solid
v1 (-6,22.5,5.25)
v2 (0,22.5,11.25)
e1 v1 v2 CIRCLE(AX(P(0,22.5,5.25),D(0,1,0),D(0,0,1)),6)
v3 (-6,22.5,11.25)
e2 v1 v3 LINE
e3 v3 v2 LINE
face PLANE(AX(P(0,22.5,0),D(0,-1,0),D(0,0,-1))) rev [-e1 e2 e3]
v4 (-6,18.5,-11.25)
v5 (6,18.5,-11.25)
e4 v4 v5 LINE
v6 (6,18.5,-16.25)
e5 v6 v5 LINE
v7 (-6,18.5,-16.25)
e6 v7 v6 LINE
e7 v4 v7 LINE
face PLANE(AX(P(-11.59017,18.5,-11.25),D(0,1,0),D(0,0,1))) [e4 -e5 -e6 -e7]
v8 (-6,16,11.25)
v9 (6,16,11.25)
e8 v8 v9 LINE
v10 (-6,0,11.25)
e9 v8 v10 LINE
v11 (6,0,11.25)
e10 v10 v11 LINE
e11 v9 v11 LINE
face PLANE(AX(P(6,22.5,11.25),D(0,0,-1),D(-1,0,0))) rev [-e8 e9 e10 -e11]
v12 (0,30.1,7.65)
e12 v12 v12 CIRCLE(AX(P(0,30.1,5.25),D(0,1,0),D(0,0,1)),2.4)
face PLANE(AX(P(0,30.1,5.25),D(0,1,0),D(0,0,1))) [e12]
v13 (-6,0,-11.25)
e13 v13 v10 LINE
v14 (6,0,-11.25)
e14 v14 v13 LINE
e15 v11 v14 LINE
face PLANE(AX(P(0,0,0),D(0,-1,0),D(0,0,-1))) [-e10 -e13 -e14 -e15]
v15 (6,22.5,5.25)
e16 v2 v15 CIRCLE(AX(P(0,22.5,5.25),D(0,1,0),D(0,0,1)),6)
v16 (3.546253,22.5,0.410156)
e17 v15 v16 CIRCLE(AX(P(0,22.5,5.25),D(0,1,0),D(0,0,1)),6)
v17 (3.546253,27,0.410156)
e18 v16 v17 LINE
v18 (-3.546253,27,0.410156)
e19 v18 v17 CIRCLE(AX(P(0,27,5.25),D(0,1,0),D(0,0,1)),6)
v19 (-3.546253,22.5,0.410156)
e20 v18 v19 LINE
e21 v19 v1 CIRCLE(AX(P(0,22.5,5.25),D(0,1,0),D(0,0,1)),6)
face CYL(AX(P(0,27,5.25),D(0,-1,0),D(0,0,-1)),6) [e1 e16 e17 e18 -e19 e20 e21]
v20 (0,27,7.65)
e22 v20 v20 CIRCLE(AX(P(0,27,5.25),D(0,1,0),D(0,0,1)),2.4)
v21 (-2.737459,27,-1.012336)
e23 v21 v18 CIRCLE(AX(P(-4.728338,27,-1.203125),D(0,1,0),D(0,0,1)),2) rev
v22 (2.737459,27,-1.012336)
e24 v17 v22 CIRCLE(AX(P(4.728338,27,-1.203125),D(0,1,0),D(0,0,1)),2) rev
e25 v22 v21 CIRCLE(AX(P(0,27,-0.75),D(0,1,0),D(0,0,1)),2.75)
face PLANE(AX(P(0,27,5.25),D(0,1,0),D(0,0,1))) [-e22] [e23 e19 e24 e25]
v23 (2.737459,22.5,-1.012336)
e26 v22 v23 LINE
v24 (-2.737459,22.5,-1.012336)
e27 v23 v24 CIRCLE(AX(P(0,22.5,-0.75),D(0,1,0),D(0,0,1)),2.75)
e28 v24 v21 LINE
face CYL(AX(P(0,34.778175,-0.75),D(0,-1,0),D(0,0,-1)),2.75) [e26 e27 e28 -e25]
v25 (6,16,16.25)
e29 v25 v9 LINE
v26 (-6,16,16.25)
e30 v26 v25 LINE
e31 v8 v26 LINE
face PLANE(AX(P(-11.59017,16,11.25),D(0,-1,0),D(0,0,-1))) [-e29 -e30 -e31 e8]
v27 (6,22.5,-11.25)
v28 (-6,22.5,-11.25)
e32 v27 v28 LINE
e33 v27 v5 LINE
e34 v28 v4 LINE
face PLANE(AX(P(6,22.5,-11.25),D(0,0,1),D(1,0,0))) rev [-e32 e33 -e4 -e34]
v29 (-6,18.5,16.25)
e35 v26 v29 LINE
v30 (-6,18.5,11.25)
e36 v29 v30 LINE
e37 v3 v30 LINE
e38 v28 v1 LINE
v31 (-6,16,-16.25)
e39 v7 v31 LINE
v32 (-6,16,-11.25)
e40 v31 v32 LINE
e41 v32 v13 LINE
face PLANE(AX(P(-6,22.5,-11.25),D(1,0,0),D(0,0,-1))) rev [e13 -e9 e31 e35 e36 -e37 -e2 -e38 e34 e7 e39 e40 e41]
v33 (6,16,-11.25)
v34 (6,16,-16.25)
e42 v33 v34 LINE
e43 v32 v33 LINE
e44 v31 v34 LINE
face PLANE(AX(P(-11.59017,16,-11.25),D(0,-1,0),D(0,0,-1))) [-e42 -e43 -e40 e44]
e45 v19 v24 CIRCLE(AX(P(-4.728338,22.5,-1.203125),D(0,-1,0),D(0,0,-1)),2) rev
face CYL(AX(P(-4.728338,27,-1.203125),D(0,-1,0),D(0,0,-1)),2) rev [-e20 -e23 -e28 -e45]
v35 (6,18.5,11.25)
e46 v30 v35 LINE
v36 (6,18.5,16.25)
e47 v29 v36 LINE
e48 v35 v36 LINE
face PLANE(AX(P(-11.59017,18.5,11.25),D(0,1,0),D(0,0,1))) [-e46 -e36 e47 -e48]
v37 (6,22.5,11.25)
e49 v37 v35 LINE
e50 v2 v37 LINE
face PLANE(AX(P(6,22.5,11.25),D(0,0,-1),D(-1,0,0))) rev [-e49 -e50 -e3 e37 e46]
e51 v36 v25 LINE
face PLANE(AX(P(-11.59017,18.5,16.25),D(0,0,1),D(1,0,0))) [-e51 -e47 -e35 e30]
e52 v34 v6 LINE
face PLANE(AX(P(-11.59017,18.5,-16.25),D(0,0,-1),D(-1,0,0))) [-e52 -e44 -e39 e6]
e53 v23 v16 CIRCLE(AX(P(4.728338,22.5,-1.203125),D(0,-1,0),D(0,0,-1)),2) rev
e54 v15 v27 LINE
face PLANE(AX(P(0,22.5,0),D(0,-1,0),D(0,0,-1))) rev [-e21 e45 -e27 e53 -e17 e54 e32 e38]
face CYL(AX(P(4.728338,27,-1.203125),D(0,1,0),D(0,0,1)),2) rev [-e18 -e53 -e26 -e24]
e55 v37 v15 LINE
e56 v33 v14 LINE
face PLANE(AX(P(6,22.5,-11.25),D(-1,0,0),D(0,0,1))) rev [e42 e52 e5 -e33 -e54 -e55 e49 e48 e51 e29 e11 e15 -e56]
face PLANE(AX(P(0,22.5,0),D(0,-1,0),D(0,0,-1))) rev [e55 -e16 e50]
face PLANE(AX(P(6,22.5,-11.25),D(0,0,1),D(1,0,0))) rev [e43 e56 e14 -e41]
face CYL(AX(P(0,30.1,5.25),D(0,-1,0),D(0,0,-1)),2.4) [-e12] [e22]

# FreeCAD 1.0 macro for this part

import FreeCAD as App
import Part
import Sketcher

V = App.Vector
Q = App.Units.Quantity


def edges_at(feature, points):
    """Names of the edges that pass closest to the given points."""
    edges = feature.Shape.Edges
    near = lambda p: min(range(len(edges)), key=lambda i: edges[i].distToShape(Part.Vertex(*p))[0])
    return sorted({f"Edge{near(p) + 1}" for p in points})

doc = App.newDocument("Part")
body = doc.addObject("PartDesign::Body", "Body")

sketch1 = doc.addObject("Sketcher::SketchObject", "Sketch")
body.addObject(sketch1)
sketch1.AttachmentSupport = (doc.XZ_Plane, [""])
sketch1.MapMode = "FlatFace"
sketch1.addGeometry([
    Part.LineSegment(V(-6, -11, 0), V(-6, 11, 0)),
    Part.LineSegment(V(-6, 11, 0), V(6, 11, 0)),
    Part.LineSegment(V(6, 11, 0), V(6, -11, 0)),
    Part.LineSegment(V(6, -11, 0), V(-6, -11, 0)),
], False)
sketch1.addConstraint([
    Sketcher.Constraint("Coincident", 0, 2, 1, 1),
    Sketcher.Constraint("Coincident", 1, 2, 2, 1),
    Sketcher.Constraint("Coincident", 2, 2, 3, 1),
    Sketcher.Constraint("Coincident", 3, 2, 0, 1),
    Sketcher.Constraint("Vertical", 0),
    Sketcher.Constraint("Horizontal", 1),
    Sketcher.Constraint("Vertical", 2),
    Sketcher.Constraint("Horizontal", 3),
    Sketcher.Constraint("Symmetric", 0, 2, 2, 2, -1, 1),
    Sketcher.Constraint("DistanceX", 1, 1, 1, 2, Q("12 mm")),
    Sketcher.Constraint("DistanceY", 0, 1, 0, 2, Q("22.5 mm")),
])
pad1 = doc.addObject("PartDesign::Pad", "Pad")
body.addObject(pad1)
pad1.Profile = sketch1
pad1.Length = 22.5
pad1.Reversed = True

sketch2 = doc.addObject("Sketcher::SketchObject", "Sketch001")
body.addObject(sketch2)
sketch2.AttachmentSupport = (doc.YZ_Plane, [""])
sketch2.MapMode = "FlatFace"
sketch2.AttachmentOffset = App.Placement(V(0, 0, 6), App.Rotation())
sketch2.addGeometry([
    Part.LineSegment(V(18.5, 16.2, 0), V(16, 16.2, 0)),
    Part.LineSegment(V(16, 16.2, 0), V(16, 11.2, 0)),
    Part.LineSegment(V(16, 11.2, 0), V(18.5, 11.2, 0)),
    Part.LineSegment(V(18.5, 11.2, 0), V(18.5, 16.2, 0)),
    Part.LineSegment(V(18.5, -11.2, 0), V(16, -11.2, 0)),
    Part.LineSegment(V(16, -11.2, 0), V(16, -16.2, 0)),
    Part.LineSegment(V(16, -16.2, 0), V(18.5, -16.2, 0)),
    Part.LineSegment(V(18.5, -16.2, 0), V(18.5, -11.2, 0)),
], False)
sketch2.addConstraint([
    Sketcher.Constraint("Coincident", 0, 2, 1, 1),
    Sketcher.Constraint("Coincident", 1, 2, 2, 1),
    Sketcher.Constraint("Coincident", 2, 2, 3, 1),
    Sketcher.Constraint("Coincident", 3, 2, 0, 1),
    Sketcher.Constraint("Coincident", 4, 2, 5, 1),
    Sketcher.Constraint("Coincident", 5, 2, 6, 1),
    Sketcher.Constraint("Coincident", 6, 2, 7, 1),
    Sketcher.Constraint("Coincident", 7, 2, 4, 1),
    Sketcher.Constraint("Horizontal", 0),
    Sketcher.Constraint("Vertical", 1),
    Sketcher.Constraint("Horizontal", 2),
    Sketcher.Constraint("Vertical", 3),
    Sketcher.Constraint("Horizontal", 4),
    Sketcher.Constraint("Vertical", 5),
    Sketcher.Constraint("Horizontal", 6),
    Sketcher.Constraint("Vertical", 7),
    Sketcher.Constraint("Symmetric", 1, 2, 4, 2, -1),
    Sketcher.Constraint("Symmetric", 3, 2, 6, 2, -1),
    Sketcher.Constraint("DistanceY", 1, 2, 1, 1, Q("5 mm")),
    Sketcher.Constraint("DistanceX", 0, 2, 0, 1, Q("2.5 mm")),
    Sketcher.Constraint("DistanceX", -1, 1, 0, 2, Q("16 mm")),
    Sketcher.Constraint("DistanceY", 4, 2, 1, 2, Q("22.5 mm")),
])
pad2 = doc.addObject("PartDesign::Pad", "Pad001")
body.addObject(pad2)
pad2.Profile = sketch2
pad2.Length = 12
pad2.Reversed = True

sketch3 = doc.addObject("Sketcher::SketchObject", "Sketch002")
body.addObject(sketch3)
sketch3.AttachmentSupport = (doc.XZ_Plane, [""])
sketch3.MapMode = "FlatFace"
sketch3.AttachmentOffset = App.Placement(V(0, 0, -22.5), App.Rotation())
sketch3.addGeometry(Part.Circle(V(0, 5, 0), V(0, 0, 1), 6), False)
sketch3.addConstraint([
    Sketcher.Constraint("PointOnObject", 0, 3, -2),
    Sketcher.Constraint("Diameter", 0, Q("12 mm")),
    Sketcher.Constraint("DistanceY", -1, 1, 0, 3, Q("5.25 mm")),
])
pad3 = doc.addObject("PartDesign::Pad", "Pad002")
body.addObject(pad3)
pad3.Profile = sketch3
pad3.Length = 4.5
pad3.Reversed = True

sketch4 = doc.addObject("Sketcher::SketchObject", "Sketch003")
body.addObject(sketch4)
sketch4.AttachmentSupport = (doc.XZ_Plane, [""])
sketch4.MapMode = "FlatFace"
sketch4.AttachmentOffset = App.Placement(V(0, 0, -27), App.Rotation())
sketch4.addGeometry(Part.Circle(V(0, 5.2, 0), V(0, 0, 1), 2.4), False)
sketch4.addConstraint([
    Sketcher.Constraint("PointOnObject", 0, 3, -2),
    Sketcher.Constraint("Diameter", 0, Q("4.8 mm")),
    Sketcher.Constraint("DistanceY", -1, 1, 0, 3, Q("5.25 mm")),
])
pad4 = doc.addObject("PartDesign::Pad", "Pad003")
body.addObject(pad4)
pad4.Profile = sketch4
pad4.Length = 3.1
pad4.Reversed = True

sketch5 = doc.addObject("Sketcher::SketchObject", "Sketch004")
body.addObject(sketch5)
sketch5.AttachmentSupport = (doc.XZ_Plane, [""])
sketch5.MapMode = "FlatFace"
sketch5.AttachmentOffset = App.Placement(V(0, 0, -22.5), App.Rotation())
sketch5.addGeometry(Part.Circle(V(0, -0.8, 0), V(0, 0, 1), 2.8), False)
sketch5.addConstraint([
    Sketcher.Constraint("PointOnObject", 0, 3, -2),
    Sketcher.Constraint("Diameter", 0, Q("5.5 mm")),
    Sketcher.Constraint("DistanceY", 0, 3, -1, 1, Q("0.75 mm")),
])
pad5 = doc.addObject("PartDesign::Pad", "Pad004")
body.addObject(pad5)
pad5.Profile = sketch5
pad5.Length = 4.5
pad5.Reversed = True
doc.recompute()

fillet = doc.addObject("PartDesign::Fillet", "Fillet")
body.addObject(fillet)
fillet.Base = (pad5, edges_at(pad5, [(2.677, 24.75, -0.12), (-2.677, 24.75, -0.12)]))
fillet.Radius = 2

doc.recompute()
